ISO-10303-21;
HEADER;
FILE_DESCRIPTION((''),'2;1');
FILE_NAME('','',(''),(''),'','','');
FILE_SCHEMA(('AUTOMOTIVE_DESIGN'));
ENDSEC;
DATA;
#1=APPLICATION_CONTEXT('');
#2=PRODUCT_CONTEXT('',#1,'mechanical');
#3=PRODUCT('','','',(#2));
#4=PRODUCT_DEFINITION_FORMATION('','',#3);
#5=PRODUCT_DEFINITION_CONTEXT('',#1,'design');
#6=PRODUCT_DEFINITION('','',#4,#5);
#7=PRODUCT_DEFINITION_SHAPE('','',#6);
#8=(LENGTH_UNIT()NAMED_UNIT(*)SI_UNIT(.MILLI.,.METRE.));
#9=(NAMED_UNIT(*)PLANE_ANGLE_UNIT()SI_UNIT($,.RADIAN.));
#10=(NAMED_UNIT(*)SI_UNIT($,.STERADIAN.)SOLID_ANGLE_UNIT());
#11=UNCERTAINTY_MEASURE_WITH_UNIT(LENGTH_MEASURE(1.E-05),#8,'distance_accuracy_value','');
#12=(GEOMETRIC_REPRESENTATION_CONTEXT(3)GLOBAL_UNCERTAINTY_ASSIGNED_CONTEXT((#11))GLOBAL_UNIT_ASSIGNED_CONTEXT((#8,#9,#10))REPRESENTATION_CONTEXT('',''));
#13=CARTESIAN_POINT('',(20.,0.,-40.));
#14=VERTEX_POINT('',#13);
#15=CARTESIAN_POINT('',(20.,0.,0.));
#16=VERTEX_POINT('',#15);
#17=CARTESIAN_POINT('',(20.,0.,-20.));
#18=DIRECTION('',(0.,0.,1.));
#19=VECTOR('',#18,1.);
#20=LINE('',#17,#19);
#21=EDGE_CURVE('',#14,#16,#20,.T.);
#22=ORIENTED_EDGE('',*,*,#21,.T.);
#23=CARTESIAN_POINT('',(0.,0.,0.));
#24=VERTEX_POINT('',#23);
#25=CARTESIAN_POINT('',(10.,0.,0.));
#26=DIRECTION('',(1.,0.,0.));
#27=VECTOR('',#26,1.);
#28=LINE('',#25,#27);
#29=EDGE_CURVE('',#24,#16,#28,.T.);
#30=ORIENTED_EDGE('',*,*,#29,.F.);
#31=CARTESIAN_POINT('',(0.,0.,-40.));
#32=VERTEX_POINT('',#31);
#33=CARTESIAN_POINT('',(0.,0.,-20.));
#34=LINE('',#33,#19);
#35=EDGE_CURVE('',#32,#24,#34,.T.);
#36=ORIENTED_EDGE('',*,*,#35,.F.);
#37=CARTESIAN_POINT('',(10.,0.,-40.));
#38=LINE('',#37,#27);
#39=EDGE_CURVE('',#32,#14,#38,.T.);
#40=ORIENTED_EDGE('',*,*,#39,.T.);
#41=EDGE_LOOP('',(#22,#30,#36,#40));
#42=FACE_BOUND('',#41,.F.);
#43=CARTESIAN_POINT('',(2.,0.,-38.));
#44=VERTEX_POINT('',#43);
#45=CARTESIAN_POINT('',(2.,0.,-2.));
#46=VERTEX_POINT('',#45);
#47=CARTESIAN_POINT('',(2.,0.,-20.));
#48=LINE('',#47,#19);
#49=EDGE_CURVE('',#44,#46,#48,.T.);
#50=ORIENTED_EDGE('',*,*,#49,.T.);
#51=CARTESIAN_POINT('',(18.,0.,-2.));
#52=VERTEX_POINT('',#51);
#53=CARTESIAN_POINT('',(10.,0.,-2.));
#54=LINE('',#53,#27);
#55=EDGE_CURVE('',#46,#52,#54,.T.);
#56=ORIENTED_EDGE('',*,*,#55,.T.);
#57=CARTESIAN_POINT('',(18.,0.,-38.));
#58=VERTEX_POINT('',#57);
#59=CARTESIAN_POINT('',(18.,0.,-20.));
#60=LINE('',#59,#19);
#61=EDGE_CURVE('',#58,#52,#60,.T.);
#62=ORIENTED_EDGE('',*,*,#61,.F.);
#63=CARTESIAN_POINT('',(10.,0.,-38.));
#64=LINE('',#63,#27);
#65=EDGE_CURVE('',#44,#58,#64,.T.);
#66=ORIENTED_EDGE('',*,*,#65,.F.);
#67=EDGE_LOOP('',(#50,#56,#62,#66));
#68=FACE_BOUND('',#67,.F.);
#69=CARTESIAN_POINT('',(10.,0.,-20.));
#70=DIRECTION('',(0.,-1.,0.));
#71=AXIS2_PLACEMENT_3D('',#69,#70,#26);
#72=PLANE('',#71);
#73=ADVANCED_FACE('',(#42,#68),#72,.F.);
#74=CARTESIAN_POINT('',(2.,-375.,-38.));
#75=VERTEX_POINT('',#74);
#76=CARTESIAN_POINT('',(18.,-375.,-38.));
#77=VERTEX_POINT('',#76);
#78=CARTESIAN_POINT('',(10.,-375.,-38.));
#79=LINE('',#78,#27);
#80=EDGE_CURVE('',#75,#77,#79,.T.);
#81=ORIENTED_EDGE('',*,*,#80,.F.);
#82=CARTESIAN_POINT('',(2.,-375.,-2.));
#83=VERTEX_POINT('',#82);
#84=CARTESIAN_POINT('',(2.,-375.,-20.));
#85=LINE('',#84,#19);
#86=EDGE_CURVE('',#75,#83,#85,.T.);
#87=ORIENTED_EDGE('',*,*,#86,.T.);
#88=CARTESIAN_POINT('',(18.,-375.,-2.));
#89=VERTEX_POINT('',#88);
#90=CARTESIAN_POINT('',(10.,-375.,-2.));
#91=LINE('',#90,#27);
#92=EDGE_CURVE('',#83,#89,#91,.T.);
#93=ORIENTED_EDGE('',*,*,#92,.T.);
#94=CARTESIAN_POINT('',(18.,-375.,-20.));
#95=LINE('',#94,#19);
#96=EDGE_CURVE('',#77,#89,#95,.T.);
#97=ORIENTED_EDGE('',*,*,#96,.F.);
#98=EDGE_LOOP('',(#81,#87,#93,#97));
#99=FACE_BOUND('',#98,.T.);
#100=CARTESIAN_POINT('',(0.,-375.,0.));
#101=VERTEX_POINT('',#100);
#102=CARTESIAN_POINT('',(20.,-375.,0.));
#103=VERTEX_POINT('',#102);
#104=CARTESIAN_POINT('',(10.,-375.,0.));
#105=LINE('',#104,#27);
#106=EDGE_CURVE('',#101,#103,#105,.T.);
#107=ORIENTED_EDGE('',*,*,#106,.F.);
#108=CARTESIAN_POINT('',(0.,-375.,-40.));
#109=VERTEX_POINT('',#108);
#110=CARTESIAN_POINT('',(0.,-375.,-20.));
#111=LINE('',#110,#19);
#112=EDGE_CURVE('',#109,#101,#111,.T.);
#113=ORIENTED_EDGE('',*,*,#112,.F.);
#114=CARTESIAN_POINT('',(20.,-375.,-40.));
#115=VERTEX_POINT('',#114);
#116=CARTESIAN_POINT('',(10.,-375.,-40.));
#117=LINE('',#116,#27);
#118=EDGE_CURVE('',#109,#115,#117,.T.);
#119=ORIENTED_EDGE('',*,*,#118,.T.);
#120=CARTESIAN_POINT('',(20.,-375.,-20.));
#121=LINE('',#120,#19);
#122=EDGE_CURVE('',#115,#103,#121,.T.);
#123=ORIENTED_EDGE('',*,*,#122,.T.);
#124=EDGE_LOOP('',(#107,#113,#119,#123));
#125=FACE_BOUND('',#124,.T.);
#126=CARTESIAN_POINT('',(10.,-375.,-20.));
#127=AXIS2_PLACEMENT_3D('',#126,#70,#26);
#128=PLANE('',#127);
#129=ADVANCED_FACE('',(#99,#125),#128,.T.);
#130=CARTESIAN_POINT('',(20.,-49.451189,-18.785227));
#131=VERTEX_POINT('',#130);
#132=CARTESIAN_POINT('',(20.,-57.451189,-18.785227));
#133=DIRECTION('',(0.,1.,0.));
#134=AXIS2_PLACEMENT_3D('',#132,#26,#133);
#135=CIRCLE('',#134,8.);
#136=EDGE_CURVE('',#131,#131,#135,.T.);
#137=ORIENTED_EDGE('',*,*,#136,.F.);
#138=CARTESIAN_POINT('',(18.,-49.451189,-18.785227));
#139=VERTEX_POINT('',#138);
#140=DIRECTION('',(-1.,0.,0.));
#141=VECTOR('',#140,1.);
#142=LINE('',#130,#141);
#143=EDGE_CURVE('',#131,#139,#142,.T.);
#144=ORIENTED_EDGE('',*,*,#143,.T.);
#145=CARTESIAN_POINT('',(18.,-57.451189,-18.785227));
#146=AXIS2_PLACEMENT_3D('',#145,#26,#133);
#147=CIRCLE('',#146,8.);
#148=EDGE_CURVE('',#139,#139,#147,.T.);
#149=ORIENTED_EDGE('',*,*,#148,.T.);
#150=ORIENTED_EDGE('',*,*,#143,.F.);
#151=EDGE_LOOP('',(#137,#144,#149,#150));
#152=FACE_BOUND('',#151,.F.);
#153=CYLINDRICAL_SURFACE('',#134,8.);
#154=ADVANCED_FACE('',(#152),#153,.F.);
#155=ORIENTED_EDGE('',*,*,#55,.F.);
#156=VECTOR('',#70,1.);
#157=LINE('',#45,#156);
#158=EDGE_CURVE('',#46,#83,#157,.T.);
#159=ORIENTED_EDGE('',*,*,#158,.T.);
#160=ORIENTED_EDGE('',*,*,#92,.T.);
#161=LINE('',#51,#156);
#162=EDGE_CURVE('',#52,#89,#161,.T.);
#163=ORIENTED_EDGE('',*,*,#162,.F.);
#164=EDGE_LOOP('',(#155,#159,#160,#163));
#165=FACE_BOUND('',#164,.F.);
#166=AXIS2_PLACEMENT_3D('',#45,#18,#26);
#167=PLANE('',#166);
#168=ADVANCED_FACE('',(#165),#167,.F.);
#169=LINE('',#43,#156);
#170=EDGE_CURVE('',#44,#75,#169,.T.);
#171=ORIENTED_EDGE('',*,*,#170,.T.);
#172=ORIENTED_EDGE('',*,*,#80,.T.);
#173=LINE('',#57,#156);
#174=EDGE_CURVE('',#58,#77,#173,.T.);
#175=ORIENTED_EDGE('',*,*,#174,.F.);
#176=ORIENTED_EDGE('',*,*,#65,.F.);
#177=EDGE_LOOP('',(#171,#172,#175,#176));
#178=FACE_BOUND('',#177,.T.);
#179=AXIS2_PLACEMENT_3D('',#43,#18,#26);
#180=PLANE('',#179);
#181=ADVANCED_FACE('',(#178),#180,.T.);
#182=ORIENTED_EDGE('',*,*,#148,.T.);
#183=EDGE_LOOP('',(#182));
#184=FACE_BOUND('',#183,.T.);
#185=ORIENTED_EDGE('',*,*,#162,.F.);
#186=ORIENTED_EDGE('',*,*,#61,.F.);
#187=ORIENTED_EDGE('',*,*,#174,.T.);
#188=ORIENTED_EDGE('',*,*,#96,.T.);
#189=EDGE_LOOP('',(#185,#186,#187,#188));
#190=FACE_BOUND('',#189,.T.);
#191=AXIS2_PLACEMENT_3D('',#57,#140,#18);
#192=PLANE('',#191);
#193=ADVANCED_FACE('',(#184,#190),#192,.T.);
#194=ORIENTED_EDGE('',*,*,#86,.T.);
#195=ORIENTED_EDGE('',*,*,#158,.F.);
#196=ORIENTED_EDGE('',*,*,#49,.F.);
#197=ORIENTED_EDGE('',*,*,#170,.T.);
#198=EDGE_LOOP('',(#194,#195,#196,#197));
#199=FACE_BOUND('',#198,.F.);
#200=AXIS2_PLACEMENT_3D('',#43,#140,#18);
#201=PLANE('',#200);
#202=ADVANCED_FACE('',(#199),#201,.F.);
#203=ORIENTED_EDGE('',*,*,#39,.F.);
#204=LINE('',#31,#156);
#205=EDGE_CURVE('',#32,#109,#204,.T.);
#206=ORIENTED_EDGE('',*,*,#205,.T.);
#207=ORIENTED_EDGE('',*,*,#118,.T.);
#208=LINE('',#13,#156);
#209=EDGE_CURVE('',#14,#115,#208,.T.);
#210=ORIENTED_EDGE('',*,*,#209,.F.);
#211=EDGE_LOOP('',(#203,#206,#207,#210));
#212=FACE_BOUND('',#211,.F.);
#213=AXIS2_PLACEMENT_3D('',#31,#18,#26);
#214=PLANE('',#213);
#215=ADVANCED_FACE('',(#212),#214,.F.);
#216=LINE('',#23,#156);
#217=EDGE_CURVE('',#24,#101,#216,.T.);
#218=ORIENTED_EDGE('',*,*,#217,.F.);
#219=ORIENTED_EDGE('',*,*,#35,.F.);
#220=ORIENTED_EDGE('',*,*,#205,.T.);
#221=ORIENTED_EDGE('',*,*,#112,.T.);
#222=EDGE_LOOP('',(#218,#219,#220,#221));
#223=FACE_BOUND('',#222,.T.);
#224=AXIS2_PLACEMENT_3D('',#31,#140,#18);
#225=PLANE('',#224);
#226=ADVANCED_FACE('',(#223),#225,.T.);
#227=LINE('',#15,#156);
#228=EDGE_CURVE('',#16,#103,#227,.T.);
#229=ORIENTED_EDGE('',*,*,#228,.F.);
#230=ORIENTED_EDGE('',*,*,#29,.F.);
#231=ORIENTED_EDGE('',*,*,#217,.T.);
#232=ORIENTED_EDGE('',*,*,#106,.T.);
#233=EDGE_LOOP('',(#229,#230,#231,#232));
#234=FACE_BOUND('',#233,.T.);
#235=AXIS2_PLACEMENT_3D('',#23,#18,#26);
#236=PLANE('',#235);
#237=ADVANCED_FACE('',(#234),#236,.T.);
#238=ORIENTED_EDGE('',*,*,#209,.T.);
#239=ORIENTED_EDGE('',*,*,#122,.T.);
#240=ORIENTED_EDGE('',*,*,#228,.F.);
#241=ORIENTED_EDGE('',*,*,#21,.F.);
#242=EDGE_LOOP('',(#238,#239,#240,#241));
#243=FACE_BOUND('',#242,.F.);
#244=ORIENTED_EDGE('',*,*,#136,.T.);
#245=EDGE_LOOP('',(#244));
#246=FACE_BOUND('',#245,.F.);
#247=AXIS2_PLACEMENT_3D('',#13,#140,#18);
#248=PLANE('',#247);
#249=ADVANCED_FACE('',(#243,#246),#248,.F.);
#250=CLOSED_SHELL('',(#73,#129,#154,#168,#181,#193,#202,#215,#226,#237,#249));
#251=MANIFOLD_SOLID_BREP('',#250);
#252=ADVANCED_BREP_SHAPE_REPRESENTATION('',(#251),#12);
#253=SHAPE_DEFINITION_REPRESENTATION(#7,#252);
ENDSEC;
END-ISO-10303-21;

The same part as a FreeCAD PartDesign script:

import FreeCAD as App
import Part
import Sketcher

V = App.Vector
Q = App.Units.Quantity

doc = App.newDocument("Part")
body = doc.addObject("PartDesign::Body", "Body")

sketch1 = body.newObject("Sketcher::SketchObject", "Sketch")
sketch1.AttachmentSupport = (doc.getObject("XZ_Plane"), [""])
sketch1.MapMode = "FlatFace"
sketch1.addGeometry(Part.LineSegment(V(0, 0, 0), V(0, -40, 0)), False)
sketch1.addGeometry(Part.LineSegment(V(0, -40, 0), V(20, -40, 0)), False)
sketch1.addGeometry(Part.LineSegment(V(20, -40, 0), V(20, 0, 0)), False)
sketch1.addGeometry(Part.LineSegment(V(20, 0, 0), V(0, 0, 0)), False)
sketch1.addGeometry(Part.LineSegment(V(18, -38, 0), V(2, -38, 0)), False)
sketch1.addGeometry(Part.LineSegment(V(2, -38, 0), V(2, -2, 0)), False)
sketch1.addGeometry(Part.LineSegment(V(2, -2, 0), V(18, -2, 0)), False)
sketch1.addGeometry(Part.LineSegment(V(18, -2, 0), V(18, -38, 0)), False)
sketch1.addConstraint(Sketcher.Constraint("Coincident", 0, 2, 1, 1))
sketch1.addConstraint(Sketcher.Constraint("Coincident", 1, 2, 2, 1))
sketch1.addConstraint(Sketcher.Constraint("Coincident", 2, 2, 3, 1))
sketch1.addConstraint(Sketcher.Constraint("Coincident", 3, 2, 0, 1))
sketch1.addConstraint(Sketcher.Constraint("Coincident", 4, 2, 5, 1))
sketch1.addConstraint(Sketcher.Constraint("Coincident", 5, 2, 6, 1))
sketch1.addConstraint(Sketcher.Constraint("Coincident", 6, 2, 7, 1))
sketch1.addConstraint(Sketcher.Constraint("Coincident", 7, 2, 4, 1))
sketch1.addConstraint(Sketcher.Constraint("Vertical", 0))
sketch1.addConstraint(Sketcher.Constraint("Horizontal", 1))
sketch1.addConstraint(Sketcher.Constraint("Vertical", 2))
sketch1.addConstraint(Sketcher.Constraint("Horizontal", 3))
sketch1.addConstraint(Sketcher.Constraint("Horizontal", 4))
sketch1.addConstraint(Sketcher.Constraint("Vertical", 5))
sketch1.addConstraint(Sketcher.Constraint("Horizontal", 6))
sketch1.addConstraint(Sketcher.Constraint("Vertical", 7))
sketch1.addConstraint(Sketcher.Constraint("Coincident", 3, 2, -1, 1))
sketch1.addConstraint(Sketcher.Constraint("DistanceX", 1, 1, 1, 2, Q("20 mm")))
sketch1.addConstraint(Sketcher.Constraint("DistanceX", 4, 2, 4, 1, Q("16 mm")))
sketch1.addConstraint(Sketcher.Constraint("DistanceY", 0, 2, 0, 1, Q("40 mm")))
sketch1.addConstraint(Sketcher.Constraint("DistanceY", 5, 1, 5, 2, Q("36 mm")))
sketch1.addConstraint(Sketcher.Constraint("DistanceX", -1, 1, 4, 2, Q("2 mm")))
sketch1.addConstraint(Sketcher.Constraint("DistanceY", 4, 2, -1, 1, Q("38 mm")))
pad1 = body.newObject("PartDesign::Pad", "Pad")
pad1.Profile = sketch1
pad1.Length = 375

sketch2 = body.newObject("Sketcher::SketchObject", "Sketch001")
sketch2.AttachmentSupport = (doc.getObject("YZ_Plane"), [""])
sketch2.MapMode = "FlatFace"
sketch2.AttachmentOffset = App.Placement(V(0, 0, 20), App.Rotation())
sketch2.addGeometry(Part.Circle(V(-57, -19, 0), V(0, 0, 1), 8), False)
sketch2.addConstraint(Sketcher.Constraint("Diameter", 0, Q("16 mm")))
sketch2.addConstraint(Sketcher.Constraint("DistanceX", 0, 3, -1, 1, Q("57.451189 mm")))
sketch2.addConstraint(Sketcher.Constraint("DistanceY", 0, 3, -1, 1, Q("18.785227 mm")))
pocket1 = body.newObject("PartDesign::Pocket", "Pocket")
pocket1.Profile = sketch2
pocket1.Length = 15

doc.recompute()
